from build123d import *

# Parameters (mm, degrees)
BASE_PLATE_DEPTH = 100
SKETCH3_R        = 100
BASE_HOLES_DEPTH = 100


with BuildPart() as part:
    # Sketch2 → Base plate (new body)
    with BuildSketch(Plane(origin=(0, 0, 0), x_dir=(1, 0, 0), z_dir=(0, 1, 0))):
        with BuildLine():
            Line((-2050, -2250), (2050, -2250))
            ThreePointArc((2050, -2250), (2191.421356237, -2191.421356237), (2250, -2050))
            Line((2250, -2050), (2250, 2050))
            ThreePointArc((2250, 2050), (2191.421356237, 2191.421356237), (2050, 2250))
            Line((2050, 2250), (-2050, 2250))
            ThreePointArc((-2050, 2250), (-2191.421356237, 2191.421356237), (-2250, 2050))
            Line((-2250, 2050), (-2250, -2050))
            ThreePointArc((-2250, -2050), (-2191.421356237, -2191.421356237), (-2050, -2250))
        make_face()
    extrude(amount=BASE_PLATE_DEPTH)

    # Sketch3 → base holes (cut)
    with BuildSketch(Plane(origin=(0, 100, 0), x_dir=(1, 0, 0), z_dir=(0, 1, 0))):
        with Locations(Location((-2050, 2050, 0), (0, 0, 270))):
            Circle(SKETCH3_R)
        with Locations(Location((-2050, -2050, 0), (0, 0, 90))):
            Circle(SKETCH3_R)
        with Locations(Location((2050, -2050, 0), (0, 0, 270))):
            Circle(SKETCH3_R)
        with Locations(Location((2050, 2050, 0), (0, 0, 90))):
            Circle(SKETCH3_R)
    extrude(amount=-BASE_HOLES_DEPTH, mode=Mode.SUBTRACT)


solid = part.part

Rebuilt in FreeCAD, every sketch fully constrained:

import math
import FreeCAD as App
import Part
import Sketcher
from FreeCAD import Vector

doc = App.newDocument("Part")
body = doc.addObject("PartDesign::Body", "Body")

sketch1 = doc.addObject("Sketcher::SketchObject", "Sketch")
body.addObject(sketch1)
sketch1.AttachmentSupport = (doc.XZ_Plane, [""])
sketch1.MapMode = "FlatFace"
sketch1.addGeometry([
    Part.LineSegment(Vector(-2050, 2250, 0), Vector(2050, 2250, 0)),
    Part.ArcOfCircle(Part.Circle(Vector(2050, 2050, 0), Vector(0, 0, 1), 200), math.radians(0), math.radians(90)),
    Part.LineSegment(Vector(2250, 2050, 0), Vector(2250, -2050, 0)),
    Part.ArcOfCircle(Part.Circle(Vector(2050, -2050, 0), Vector(0, 0, 1), 200), math.radians(-90), math.radians(0)),
    Part.LineSegment(Vector(2050, -2250, 0), Vector(-2050, -2250, 0)),
    Part.ArcOfCircle(Part.Circle(Vector(-2050, -2050, 0), Vector(0, 0, 1), 200), math.radians(-180), math.radians(-90)),
    Part.LineSegment(Vector(-2250, -2050, 0), Vector(-2250, 2050, 0)),
    Part.ArcOfCircle(Part.Circle(Vector(-2050, 2050, 0), Vector(0, 0, 1), 200), math.radians(90), math.radians(180)),
], False)
sketch1.addConstraint([
    Sketcher.Constraint("Tangent", 0, 2, 1, 2),
    Sketcher.Constraint("Tangent", 1, 1, 2, 1),
    Sketcher.Constraint("Tangent", 2, 2, 3, 2),
    Sketcher.Constraint("Tangent", 3, 1, 4, 1),
    Sketcher.Constraint("Tangent", 4, 2, 5, 2),
    Sketcher.Constraint("Tangent", 5, 1, 6, 1),
    Sketcher.Constraint("Tangent", 6, 2, 7, 2),
    Sketcher.Constraint("Tangent", 7, 1, 0, 1),
    Sketcher.Constraint("Horizontal", 0),
    Sketcher.Constraint("Vertical", 2),
    Sketcher.Constraint("Horizontal", 4),
    Sketcher.Constraint("Vertical", 6),
    Sketcher.Constraint("Equal", 1, 3),
    Sketcher.Constraint("Equal", 3, 5),
    Sketcher.Constraint("Equal", 5, 7),
    Sketcher.Constraint("Symmetric", 1, 3, 5, 3, -1, 1),
    Sketcher.Constraint("Equal", 4, 2),
    Sketcher.Constraint("Radius", 1, 200.0),
    Sketcher.Constraint("DistanceX", 0, 1, 0, 2, 4100.0),
])
pad1 = doc.addObject("PartDesign::Pad", "Pad")
body.addObject(pad1)
pad1.Profile = sketch1
pad1.Length = 100
pad1.Reversed = True

sketch2 = doc.addObject("Sketcher::SketchObject", "Sketch001")
body.addObject(sketch2)
sketch2.AttachmentSupport = (doc.XZ_Plane, [""])
sketch2.MapMode = "FlatFace"
sketch2.AttachmentOffset = App.Placement(Vector(0, 0, -100), App.Rotation())
sketch2.addGeometry([
    Part.Circle(Vector(-2050, -2050, 0), Vector(0, 0, 1), 100),
    Part.Circle(Vector(-2050, 2050, 0), Vector(0, 0, 1), 100),
    Part.Circle(Vector(2050, 2050, 0), Vector(0, 0, 1), 100),
    Part.Circle(Vector(2050, -2050, 0), Vector(0, 0, 1), 100),
], False)
sketch2.addConstraint([
    Sketcher.Constraint("Equal", 0, 1),
    Sketcher.Constraint("Equal", 1, 2),
    Sketcher.Constraint("Equal", 2, 3),
    Sketcher.Constraint("Symmetric", 0, 3, 2, 3, -1, 1),
    Sketcher.Constraint("Symmetric", 1, 3, 3, 3, -1, 1),
    Sketcher.Constraint("Symmetric", 1, 3, 2, 3, -2),
    Sketcher.Constraint("Diameter", 0, 200.0),
    Sketcher.Constraint("DistanceX", 0, 3, -1, 1, 2050.0),
    Sketcher.Constraint("DistanceY", 0, 3, -1, 1, 2050.0),
])
pocket1 = doc.addObject("PartDesign::Pocket", "Pocket")
body.addObject(pocket1)
pocket1.Profile = sketch2
pocket1.Length = 100
pocket1.Reversed = True

doc.recompute()
